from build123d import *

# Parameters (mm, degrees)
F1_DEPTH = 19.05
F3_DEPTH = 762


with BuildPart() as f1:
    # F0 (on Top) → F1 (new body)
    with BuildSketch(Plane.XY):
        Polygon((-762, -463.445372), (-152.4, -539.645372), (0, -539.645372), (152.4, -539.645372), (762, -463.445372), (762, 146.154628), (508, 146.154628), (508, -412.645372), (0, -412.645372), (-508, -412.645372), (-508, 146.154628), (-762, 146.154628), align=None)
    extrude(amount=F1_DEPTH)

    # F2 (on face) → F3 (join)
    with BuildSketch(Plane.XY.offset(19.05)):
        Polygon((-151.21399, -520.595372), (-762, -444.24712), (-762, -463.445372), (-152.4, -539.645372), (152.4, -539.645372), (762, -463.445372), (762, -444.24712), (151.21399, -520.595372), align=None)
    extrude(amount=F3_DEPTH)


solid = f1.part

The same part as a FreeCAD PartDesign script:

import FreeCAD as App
import Part
import Sketcher
Q = App.Units.Quantity

doc = App.newDocument("Part")
body = doc.addObject("PartDesign::Body", "Body")

sketch1 = body.newObject("Sketcher::SketchObject", "Sketch")
sketch1.AttachmentSupport = (doc.getObject("XY_Plane"), [""])
sketch1.MapMode = "FlatFace"
sketch1.addGeometry(Part.LineSegment(App.Vector(-762, -463.445372, 0), App.Vector(-152.4, -539.645372, 0)), False)
sketch1.addGeometry(Part.LineSegment(App.Vector(-152.4, -539.645372, 0), App.Vector(152.4, -539.645372, 0)), False)
sketch1.addGeometry(Part.LineSegment(App.Vector(152.4, -539.645372, 0), App.Vector(762, -463.445372, 0)), False)
sketch1.addGeometry(Part.LineSegment(App.Vector(762, -463.445372, 0), App.Vector(762, 146.154628, 0)), False)
sketch1.addGeometry(Part.LineSegment(App.Vector(762, 146.154628, 0), App.Vector(508, 146.154628, 0)), False)
sketch1.addGeometry(Part.LineSegment(App.Vector(508, 146.154628, 0), App.Vector(508, -412.645372, 0)), False)
sketch1.addGeometry(Part.LineSegment(App.Vector(508, -412.645372, 0), App.Vector(-508, -412.645372, 0)), False)
sketch1.addGeometry(Part.LineSegment(App.Vector(-508, -412.645372, 0), App.Vector(-508, 146.154628, 0)), False)
sketch1.addGeometry(Part.LineSegment(App.Vector(-508, 146.154628, 0), App.Vector(-762, 146.154628, 0)), False)
sketch1.addGeometry(Part.LineSegment(App.Vector(-762, 146.154628, 0), App.Vector(-762, -463.445372, 0)), False)
sketch1.addConstraint(Sketcher.Constraint("Coincident", 0, 2, 1, 1))
sketch1.addConstraint(Sketcher.Constraint("Coincident", 1, 2, 2, 1))
sketch1.addConstraint(Sketcher.Constraint("Coincident", 2, 2, 3, 1))
sketch1.addConstraint(Sketcher.Constraint("Coincident", 3, 2, 4, 1))
sketch1.addConstraint(Sketcher.Constraint("Coincident", 4, 2, 5, 1))
sketch1.addConstraint(Sketcher.Constraint("Coincident", 5, 2, 6, 1))
sketch1.addConstraint(Sketcher.Constraint("Coincident", 6, 2, 7, 1))
sketch1.addConstraint(Sketcher.Constraint("Coincident", 7, 2, 8, 1))
sketch1.addConstraint(Sketcher.Constraint("Coincident", 8, 2, 9, 1))
sketch1.addConstraint(Sketcher.Constraint("Coincident", 9, 2, 0, 1))
sketch1.addConstraint(Sketcher.Constraint("Horizontal", 1))
sketch1.addConstraint(Sketcher.Constraint("Vertical", 3))
sketch1.addConstraint(Sketcher.Constraint("Horizontal", 4))
sketch1.addConstraint(Sketcher.Constraint("Vertical", 5))
sketch1.addConstraint(Sketcher.Constraint("Horizontal", 6))
sketch1.addConstraint(Sketcher.Constraint("Vertical", 7))
sketch1.addConstraint(Sketcher.Constraint("Horizontal", 8))
sketch1.addConstraint(Sketcher.Constraint("Vertical", 9))
sketch1.addConstraint(Sketcher.Constraint("Symmetric", 4, 2, 7, 2, -2))
sketch1.addConstraint(Sketcher.Constraint("Symmetric", 2, 2, 9, 2, -2))
sketch1.addConstraint(Sketcher.Constraint("Equal", 0, 2))
sketch1.addConstraint(Sketcher.Constraint("DistanceX", 1, 1, 1, 2, Q("12 in")))
sketch1.addConstraint(Sketcher.Constraint("DistanceX", 4, 2, 4, 1, Q("10 in")))
sketch1.addConstraint(Sketcher.Constraint("DistanceX", 6, 2, 6, 1, Q("40 in")))
sketch1.addConstraint(Sketcher.Constraint("DistanceY", 3, 1, 3, 2, Q("24 in")))
sketch1.addConstraint(Sketcher.Constraint("DistanceY", 5, 2, 5, 1, Q("22 in")))
sketch1.addConstraint(Sketcher.Constraint("DistanceY", 1, 2, 2, 2, Q("3 in")))
sketch1.addConstraint(Sketcher.Constraint("DistanceY", 0, 2, -1, 1, Q("539.645372 mm")))
pad1 = body.newObject("PartDesign::Pad", "Pad")
pad1.Profile = sketch1
pad1.Length = Q("0.75 in")

sketch2 = body.newObject("Sketcher::SketchObject", "Sketch001")
sketch2.AttachmentSupport = (doc.getObject("XY_Plane"), [""])
sketch2.MapMode = "FlatFace"
sketch2.AttachmentOffset = App.Placement(App.Vector(0, 0, 0.75 * 25.4), App.Rotation())
sketch2.addGeometry(Part.LineSegment(App.Vector(-151.21399, -520.595372, 0), App.Vector(-762, -444.24712, 0)), False)
sketch2.addGeometry(Part.LineSegment(App.Vector(-762, -444.24712, 0), App.Vector(-762, -463.445372, 0)), False)
sketch2.addGeometry(Part.LineSegment(App.Vector(-762, -463.445372, 0), App.Vector(-152.4, -539.645372, 0)), False)
sketch2.addGeometry(Part.LineSegment(App.Vector(-152.4, -539.645372, 0), App.Vector(152.4, -539.645372, 0)), False)
sketch2.addGeometry(Part.LineSegment(App.Vector(152.4, -539.645372, 0), App.Vector(762, -463.445372, 0)), False)
sketch2.addGeometry(Part.LineSegment(App.Vector(762, -463.445372, 0), App.Vector(762, -444.24712, 0)), False)
sketch2.addGeometry(Part.LineSegment(App.Vector(762, -444.24712, 0), App.Vector(151.21399, -520.595372, 0)), False)
sketch2.addGeometry(Part.LineSegment(App.Vector(151.21399, -520.595372, 0), App.Vector(-151.21399, -520.595372, 0)), False)
sketch2.addConstraint(Sketcher.Constraint("Coincident", 0, 2, 1, 1))
sketch2.addConstraint(Sketcher.Constraint("Coincident", 1, 2, 2, 1))
sketch2.addConstraint(Sketcher.Constraint("Coincident", 2, 2, 3, 1))
sketch2.addConstraint(Sketcher.Constraint("Coincident", 3, 2, 4, 1))
sketch2.addConstraint(Sketcher.Constraint("Coincident", 4, 2, 5, 1))
sketch2.addConstraint(Sketcher.Constraint("Coincident", 5, 2, 6, 1))
sketch2.addConstraint(Sketcher.Constraint("Coincident", 6, 2, 7, 1))
sketch2.addConstraint(Sketcher.Constraint("Coincident", 7, 2, 0, 1))
sketch2.addConstraint(Sketcher.Constraint("Vertical", 1))
sketch2.addConstraint(Sketcher.Constraint("Horizontal", 3))
sketch2.addConstraint(Sketcher.Constraint("Vertical", 5))
sketch2.addConstraint(Sketcher.Constraint("Horizontal", 7))
sketch2.addConstraint(Sketcher.Constraint("Symmetric", 1, 2, 4, 2, -2))
sketch2.addConstraint(Sketcher.Constraint("Parallel", 0, 2))
sketch2.addConstraint(Sketcher.Constraint("Parallel", 4, 6))
sketch2.addConstraint(Sketcher.Constraint("Horizontal", 0, 2, 5, 2))
sketch2.addConstraint(Sketcher.Constraint("Equal", 2, 4))
sketch2.addConstraint(Sketcher.Constraint("DistanceX", 3, 1, 3, 2, Q("12 in")))
sketch2.addConstraint(Sketcher.Constraint("DistanceX", 0, 2, -1, 1, Q("30 in")))
sketch2.addConstraint(Sketcher.Constraint("DistanceY", 2, 2, 1, 2, Q("3 in")))
sketch2.addConstraint(Sketcher.Constraint("DistanceY", 3, 2, 6, 2, Q("0.75 in")))
sketch2.addConstraint(Sketcher.Constraint("DistanceX", 7, 2, 7, 1, Q("302.42798 mm")))
sketch2.addConstraint(Sketcher.Constraint("DistanceY", 0, 2, -1, 1, Q("444.24712 mm")))
pad2 = body.newObject("PartDesign::Pad", "Pad001")
pad2.Profile = sketch2
pad2.Length = Q("30 in")

doc.recompute()
